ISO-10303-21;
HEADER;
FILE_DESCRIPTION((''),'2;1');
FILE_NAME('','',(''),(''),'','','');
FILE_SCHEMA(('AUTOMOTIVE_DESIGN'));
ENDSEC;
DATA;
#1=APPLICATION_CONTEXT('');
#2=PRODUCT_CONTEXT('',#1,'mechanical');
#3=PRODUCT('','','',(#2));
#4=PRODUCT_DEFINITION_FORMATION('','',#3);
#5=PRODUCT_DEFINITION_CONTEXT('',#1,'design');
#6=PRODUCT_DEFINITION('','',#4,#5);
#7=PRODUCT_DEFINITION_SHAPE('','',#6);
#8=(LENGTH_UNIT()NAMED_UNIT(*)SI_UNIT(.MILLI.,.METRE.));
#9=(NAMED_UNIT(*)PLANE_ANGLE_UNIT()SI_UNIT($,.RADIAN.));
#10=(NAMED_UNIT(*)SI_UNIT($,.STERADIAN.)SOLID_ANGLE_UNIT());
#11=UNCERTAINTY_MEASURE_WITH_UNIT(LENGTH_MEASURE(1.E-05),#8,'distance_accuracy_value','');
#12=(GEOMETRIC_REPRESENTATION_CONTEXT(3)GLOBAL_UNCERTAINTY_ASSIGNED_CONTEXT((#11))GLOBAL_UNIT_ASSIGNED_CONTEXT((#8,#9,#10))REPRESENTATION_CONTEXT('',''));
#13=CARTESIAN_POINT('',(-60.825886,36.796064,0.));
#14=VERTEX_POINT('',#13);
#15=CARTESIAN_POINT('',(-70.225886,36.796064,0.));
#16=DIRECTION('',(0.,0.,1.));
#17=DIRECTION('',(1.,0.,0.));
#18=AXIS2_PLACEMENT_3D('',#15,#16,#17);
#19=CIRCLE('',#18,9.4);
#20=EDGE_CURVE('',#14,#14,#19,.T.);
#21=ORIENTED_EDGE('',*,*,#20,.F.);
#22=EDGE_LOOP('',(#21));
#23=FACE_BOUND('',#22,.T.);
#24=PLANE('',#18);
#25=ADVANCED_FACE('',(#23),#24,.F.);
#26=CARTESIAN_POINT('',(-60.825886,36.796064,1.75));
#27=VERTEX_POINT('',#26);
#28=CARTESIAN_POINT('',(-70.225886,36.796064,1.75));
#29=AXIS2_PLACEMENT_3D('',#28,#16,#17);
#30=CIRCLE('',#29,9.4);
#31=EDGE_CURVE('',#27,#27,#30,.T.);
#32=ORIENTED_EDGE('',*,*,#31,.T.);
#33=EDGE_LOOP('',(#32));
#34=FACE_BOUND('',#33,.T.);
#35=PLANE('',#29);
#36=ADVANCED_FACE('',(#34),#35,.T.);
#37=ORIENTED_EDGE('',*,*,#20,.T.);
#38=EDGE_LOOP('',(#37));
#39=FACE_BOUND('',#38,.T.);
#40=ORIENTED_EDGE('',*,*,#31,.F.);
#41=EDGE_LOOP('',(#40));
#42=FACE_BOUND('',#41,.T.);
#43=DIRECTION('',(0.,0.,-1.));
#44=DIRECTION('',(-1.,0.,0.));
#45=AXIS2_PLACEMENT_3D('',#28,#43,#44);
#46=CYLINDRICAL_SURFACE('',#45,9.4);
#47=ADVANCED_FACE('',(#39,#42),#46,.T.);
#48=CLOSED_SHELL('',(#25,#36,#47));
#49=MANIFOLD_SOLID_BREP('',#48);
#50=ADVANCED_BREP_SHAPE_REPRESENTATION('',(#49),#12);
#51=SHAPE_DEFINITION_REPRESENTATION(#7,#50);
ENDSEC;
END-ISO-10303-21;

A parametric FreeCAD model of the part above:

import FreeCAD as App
import Part
import Sketcher
from FreeCAD import Vector

doc = App.newDocument("Part")
params = doc.addObject("Spreadsheet::Sheet", "Params")
for row, (alias, value) in enumerate([
    ("sketch1_diameter", "18.8 mm"),
    ("pad1_length", "1.75 mm"),
], start=1):
    params.set(f"A{row}", alias)
    params.set(f"B{row}", "=" + value)
    params.setAlias(f"B{row}", alias)

body = doc.addObject("PartDesign::Body", "Body")

sketch1 = body.newObject("Sketcher::SketchObject", "Sketch")
sketch1.AttachmentSupport = (doc.getObject("XY_Plane"), [""])
sketch1.MapMode = "FlatFace"
sketch1.addGeometry(Part.Circle(Vector(-70, 37, 0), Vector(0, 0, 1), 9), False)
sketch1.addConstraint([
    Sketcher.Constraint("Diameter", 0, 18.8),
    Sketcher.Constraint("DistanceX", 0, 3, -1, 1, 70.225886),
    Sketcher.Constraint("DistanceY", -1, 1, 0, 3, 36.796064),
])
sketch1.setExpression("Constraints[0]", "Params.sketch1_diameter")
pad1 = body.newObject("PartDesign::Pad", "Pad")
pad1.Profile = sketch1
pad1.setExpression("Length", "Params.pad1_length")

doc.recompute()
